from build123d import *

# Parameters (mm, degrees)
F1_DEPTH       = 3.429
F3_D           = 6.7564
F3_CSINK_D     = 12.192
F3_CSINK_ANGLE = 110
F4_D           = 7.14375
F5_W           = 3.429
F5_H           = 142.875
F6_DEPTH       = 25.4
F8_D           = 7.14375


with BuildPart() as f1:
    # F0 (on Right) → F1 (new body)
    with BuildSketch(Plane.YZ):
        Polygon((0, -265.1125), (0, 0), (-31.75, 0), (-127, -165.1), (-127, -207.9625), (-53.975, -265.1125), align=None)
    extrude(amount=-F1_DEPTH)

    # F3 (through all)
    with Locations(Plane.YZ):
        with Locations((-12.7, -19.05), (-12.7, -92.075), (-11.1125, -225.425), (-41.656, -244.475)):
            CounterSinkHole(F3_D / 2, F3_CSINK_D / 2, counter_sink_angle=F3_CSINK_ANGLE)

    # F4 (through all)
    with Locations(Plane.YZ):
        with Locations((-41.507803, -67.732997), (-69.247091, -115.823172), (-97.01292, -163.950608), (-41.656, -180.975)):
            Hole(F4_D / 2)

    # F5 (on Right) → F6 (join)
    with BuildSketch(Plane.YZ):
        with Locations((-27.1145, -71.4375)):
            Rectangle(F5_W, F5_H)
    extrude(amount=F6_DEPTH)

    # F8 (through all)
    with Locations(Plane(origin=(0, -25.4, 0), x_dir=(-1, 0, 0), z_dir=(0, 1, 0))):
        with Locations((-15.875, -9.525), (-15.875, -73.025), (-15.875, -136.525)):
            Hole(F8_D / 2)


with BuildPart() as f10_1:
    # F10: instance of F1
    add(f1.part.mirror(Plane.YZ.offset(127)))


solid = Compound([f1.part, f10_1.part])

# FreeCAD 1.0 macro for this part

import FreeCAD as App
import Part
import Sketcher
from FreeCAD import Vector
Q = App.Units.Quantity

doc = App.newDocument("Part")
body = doc.addObject("PartDesign::Body", "Body")

sketch1 = body.newObject("Sketcher::SketchObject", "Sketch")
sketch1.AttachmentSupport = (doc.getObject("YZ_Plane"), [""])
sketch1.MapMode = "FlatFace"
sketch1.addGeometry([
    Part.LineSegment(Vector(0, -265.1125, 0), Vector(0, 0, 0)),
    Part.LineSegment(Vector(0, 0, 0), Vector(-31.75, 0, 0)),
    Part.LineSegment(Vector(-31.75, 0, 0), Vector(-127, -165.1, 0)),
    Part.LineSegment(Vector(-127, -165.1, 0), Vector(-127, -207.9625, 0)),
    Part.LineSegment(Vector(-127, -207.9625, 0), Vector(-53.975, -265.1125, 0)),
    Part.LineSegment(Vector(-53.975, -265.1125, 0), Vector(0, -265.1125, 0)),
], False)
sketch1.addConstraint([
    Sketcher.Constraint("Coincident", 0, 2, 1, 1),
    Sketcher.Constraint("Coincident", 1, 2, 2, 1),
    Sketcher.Constraint("Coincident", 2, 2, 3, 1),
    Sketcher.Constraint("Coincident", 3, 2, 4, 1),
    Sketcher.Constraint("Coincident", 4, 2, 5, 1),
    Sketcher.Constraint("Coincident", 5, 2, 0, 1),
    Sketcher.Constraint("Vertical", 0),
    Sketcher.Constraint("Horizontal", 1),
    Sketcher.Constraint("Vertical", 3),
    Sketcher.Constraint("Horizontal", 5),
    Sketcher.Constraint("Coincident", 0, 2, -1, 1),
    Sketcher.Constraint("DistanceX", 2, 2, -1, 1, Q("5 in")),
    Sketcher.Constraint("DistanceX", 1, 2, 1, 1, Q("1.25 in")),
    Sketcher.Constraint("DistanceY", 2, 2, -1, 1, Q("6.5 in")),
    Sketcher.Constraint("DistanceX", 5, 1, 5, 2, Q("2.125 in")),
    Sketcher.Constraint("DistanceY", 0, 1, 0, 2, Q("10.4375 in")),
    Sketcher.Constraint("DistanceY", 3, 2, 3, 1, Q("1.6875 in")),
])
pad1 = body.newObject("PartDesign::Pad", "Pad")
pad1.Profile = sketch1
pad1.Length = Q("0.135 in")
pad1.Reversed = True

sketch2 = body.newObject("Sketcher::SketchObject", "Sketch001")
sketch2.AttachmentSupport = (doc.getObject("YZ_Plane"), [""])
sketch2.MapMode = "FlatFace"
sketch2.addGeometry([
    Part.Circle(Vector(-12.7, -19.05, 0), Vector(0, 0, 1), 3.3782),
    Part.Circle(Vector(-12.7, -92.075, 0), Vector(0, 0, 1), 3.3782),
    Part.Circle(Vector(-11.1125, -225.425, 0), Vector(0, 0, 1), 3.3782),
    Part.Circle(Vector(-41.656, -244.475, 0), Vector(0, 0, 1), 3.3782),
], False)
sketch2.addConstraint([
    Sketcher.Constraint("Equal", 0, 1),
    Sketcher.Constraint("Equal", 1, 2),
    Sketcher.Constraint("Equal", 2, 3),
    Sketcher.Constraint("Vertical", 0, 3, 1, 3),
    Sketcher.Constraint("Diameter", 0, Q("0.266 in")),
    Sketcher.Constraint("DistanceY", 3, 3, 1, 3, Q("6 in")),
    Sketcher.Constraint("DistanceX", 0, 3, -1, 1, Q("0.5 in")),
    Sketcher.Constraint("DistanceY", 0, 3, -1, 1, Q("0.75 in")),
    Sketcher.Constraint("DistanceX", 3, 3, -1, 1, Q("1.64 in")),
    Sketcher.Constraint("DistanceY", 2, 3, 1, 3, Q("5.25 in")),
    Sketcher.Constraint("DistanceY", 1, 3, -1, 1, Q("3.625 in")),
    Sketcher.Constraint("DistanceX", 2, 3, -1, 1, Q("0.4375 in")),
])
doc.recompute()
hole = body.newObject("PartDesign::Hole", "Hole")
hole.Profile = sketch2
hole.ThreadType = "None"
hole.Diameter = Q("0.266 in")
hole.DepthType = "ThroughAll"
hole.HoleCutType = "Countersink"
hole.HoleCutDiameter = Q("0.48 in")
hole.HoleCutCountersinkAngle = 110

sketch3 = body.newObject("Sketcher::SketchObject", "Sketch002")
sketch3.AttachmentSupport = (doc.getObject("YZ_Plane"), [""])
sketch3.MapMode = "FlatFace"
sketch3.addGeometry([
    Part.Circle(Vector(-41.507803, -67.732997, 0), Vector(0, 0, 1), 3.571875),
    Part.Circle(Vector(-69.247091, -115.823172, 0), Vector(0, 0, 1), 3.571875),
    Part.Circle(Vector(-97.01292, -163.950608, 0), Vector(0, 0, 1), 3.571875),
    Part.Circle(Vector(-41.656, -180.975, 0), Vector(0, 0, 1), 3.571875),
], False)
sketch3.addConstraint([
    Sketcher.Constraint("Equal", 0, 1),
    Sketcher.Constraint("Equal", 1, 2),
    Sketcher.Constraint("Equal", 2, 3),
    Sketcher.Constraint("Diameter", 0, Q("0.28125 in")),
    Sketcher.Constraint("DistanceX", 3, 3, -1, 1, Q("1.64 in")),
    Sketcher.Constraint("DistanceY", 3, 3, -1, 1, Q("7.125 in")),
    Sketcher.Constraint("DistanceX", 1, 3, -1, 1, Q("69.247091 mm")),
    Sketcher.Constraint("DistanceY", 1, 3, -1, 1, Q("115.823172 mm")),
    Sketcher.Constraint("DistanceX", 2, 3, -1, 1, Q("97.01292 mm")),
    Sketcher.Constraint("DistanceY", 2, 3, 0, 3, Q("96.217611 mm")),
    Sketcher.Constraint("DistanceX", 0, 3, -1, 1, Q("41.507803 mm")),
    Sketcher.Constraint("DistanceY", 0, 3, -1, 1, Q("67.732997 mm")),
])
doc.recompute()
hole2 = body.newObject("PartDesign::Hole", "Hole001")
hole2.Profile = sketch3
hole2.ThreadType = "None"
hole2.Diameter = Q("0.28125 in")
hole2.DepthType = "ThroughAll"

sketch4 = body.newObject("Sketcher::SketchObject", "Sketch003")
sketch4.AttachmentSupport = (doc.getObject("YZ_Plane"), [""])
sketch4.MapMode = "FlatFace"
sketch4.addGeometry([
    Part.LineSegment(Vector(-28.829, 0, 0), Vector(-28.829, -142.875, 0)),
    Part.LineSegment(Vector(-28.829, -142.875, 0), Vector(-25.4, -142.875, 0)),
    Part.LineSegment(Vector(-25.4, -142.875, 0), Vector(-25.4, 0, 0)),
    Part.LineSegment(Vector(-25.4, 0, 0), Vector(-28.829, 0, 0)),
], False)
sketch4.addConstraint([
    Sketcher.Constraint("Coincident", 0, 2, 1, 1),
    Sketcher.Constraint("Coincident", 1, 2, 2, 1),
    Sketcher.Constraint("Coincident", 2, 2, 3, 1),
    Sketcher.Constraint("Coincident", 3, 2, 0, 1),
    Sketcher.Constraint("Vertical", 0),
    Sketcher.Constraint("Horizontal", 1),
    Sketcher.Constraint("Vertical", 2),
    Sketcher.Constraint("Horizontal", 3),
    Sketcher.Constraint("PointOnObject", 2, 2, -1),
    Sketcher.Constraint("DistanceX", 1, 2, -1, 1, Q("1 in")),
    Sketcher.Constraint("DistanceX", 1, 1, 1, 2, Q("0.135 in")),
    Sketcher.Constraint("DistanceY", 0, 2, 0, 1, Q("5.625 in")),
])
pad2 = body.newObject("PartDesign::Pad", "Pad001")
pad2.Profile = sketch4
pad2.Length = Q("1 in")

sketch5 = body.newObject("Sketcher::SketchObject", "Sketch004")
sketch5.AttachmentSupport = (doc.getObject("XZ_Plane"), [""])
sketch5.MapMode = "FlatFace"
sketch5.AttachmentOffset = App.Placement(Vector(0, 0, 1 * 25.4), App.Rotation())
sketch5.addGeometry([
    Part.Circle(Vector(15.875, -9.525, 0), Vector(0, 0, 1), 3.571875),
    Part.Circle(Vector(15.875, -73.025, 0), Vector(0, 0, 1), 3.571875),
    Part.Circle(Vector(15.875, -136.525, 0), Vector(0, 0, 1), 3.571875),
], False)
sketch5.addConstraint([
    Sketcher.Constraint("Equal", 0, 1),
    Sketcher.Constraint("Equal", 1, 2),
    Sketcher.Constraint("Vertical", 0, 3, 1, 3),
    Sketcher.Constraint("Vertical", 1, 3, 2, 3),
    Sketcher.Constraint("Diameter", 0, Q("0.28125 in")),
    Sketcher.Constraint("DistanceY", 2, 3, 0, 3, Q("5 in")),
    Sketcher.Constraint("DistanceY", 1, 3, 0, 3, Q("2.5 in")),
    Sketcher.Constraint("DistanceX", -1, 1, 0, 3, Q("0.625 in")),
    Sketcher.Constraint("DistanceY", 0, 3, -1, 1, Q("0.375 in")),
])
doc.recompute()
hole3 = body.newObject("PartDesign::Hole", "Hole002")
hole3.Profile = sketch5
hole3.ThreadType = "None"
hole3.Diameter = Q("0.28125 in")
hole3.DepthType = "ThroughAll"
hole3.Reversed = True
body2 = doc.addObject("PartDesign::Body", "Body001")
doc.recompute()

mirroring = doc.addObject("Part::Mirroring", "Mirroring")
mirroring.Source = body
mirroring.Base = Vector(127, 0, 0)
mirroring.Normal = Vector(1, 0, 0)
body2.BaseFeature = mirroring
doc.recompute()
mirroring.Visibility = False

doc.recompute()
